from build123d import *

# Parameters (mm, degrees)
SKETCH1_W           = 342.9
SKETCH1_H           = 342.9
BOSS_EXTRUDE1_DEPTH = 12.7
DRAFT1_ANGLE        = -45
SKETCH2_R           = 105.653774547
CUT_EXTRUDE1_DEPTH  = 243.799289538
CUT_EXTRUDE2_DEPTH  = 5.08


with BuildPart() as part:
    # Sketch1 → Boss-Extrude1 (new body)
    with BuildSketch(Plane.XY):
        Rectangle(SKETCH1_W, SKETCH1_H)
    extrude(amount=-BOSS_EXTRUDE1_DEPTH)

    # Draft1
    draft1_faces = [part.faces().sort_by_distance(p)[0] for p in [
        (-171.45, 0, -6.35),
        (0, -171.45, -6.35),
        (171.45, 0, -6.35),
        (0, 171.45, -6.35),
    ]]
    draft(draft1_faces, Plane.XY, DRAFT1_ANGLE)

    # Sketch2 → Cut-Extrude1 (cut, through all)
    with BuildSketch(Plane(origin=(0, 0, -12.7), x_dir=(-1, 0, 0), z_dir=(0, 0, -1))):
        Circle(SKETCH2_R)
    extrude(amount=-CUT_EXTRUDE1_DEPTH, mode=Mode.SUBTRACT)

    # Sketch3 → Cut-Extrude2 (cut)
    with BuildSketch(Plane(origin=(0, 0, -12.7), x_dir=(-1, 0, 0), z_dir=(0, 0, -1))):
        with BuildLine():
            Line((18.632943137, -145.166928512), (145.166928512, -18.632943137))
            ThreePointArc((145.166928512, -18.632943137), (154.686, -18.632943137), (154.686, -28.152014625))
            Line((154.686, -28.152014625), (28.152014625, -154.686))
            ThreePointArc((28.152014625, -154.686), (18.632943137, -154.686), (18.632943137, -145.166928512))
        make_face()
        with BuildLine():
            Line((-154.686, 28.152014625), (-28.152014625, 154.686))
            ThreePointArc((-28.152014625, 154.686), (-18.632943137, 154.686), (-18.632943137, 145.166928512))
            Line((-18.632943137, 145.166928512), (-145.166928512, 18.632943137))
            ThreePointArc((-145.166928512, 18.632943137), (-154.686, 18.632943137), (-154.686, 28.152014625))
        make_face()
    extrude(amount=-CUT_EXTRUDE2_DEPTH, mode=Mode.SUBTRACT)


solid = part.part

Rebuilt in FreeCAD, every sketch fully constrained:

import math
import FreeCAD as App
import Part
import Sketcher
from FreeCAD import Vector
Q = App.Units.Quantity


def faces_at(feature, points):
    """Names of the faces that lie closest to the given points."""
    faces = feature.Shape.Faces
    near = lambda p: min(range(len(faces)), key=lambda i: faces[i].distToShape(Part.Vertex(*p))[0])
    return sorted({f"Face{near(p) + 1}" for p in points})

doc = App.newDocument("Part")
body = doc.addObject("PartDesign::Body", "Body")

sketch1 = doc.addObject("Sketcher::SketchObject", "Sketch")
body.addObject(sketch1)
sketch1.AttachmentSupport = (doc.XY_Plane, [""])
sketch1.MapMode = "FlatFace"
sketch1.addGeometry(Part.LineSegment(Vector(-171, 171, 0), Vector(-171, -171, 0)), False)
sketch1.addGeometry(Part.LineSegment(Vector(-171, -171, 0), Vector(171, -171, 0)), False)
sketch1.addGeometry(Part.LineSegment(Vector(171, -171, 0), Vector(171, 171, 0)), False)
sketch1.addGeometry(Part.LineSegment(Vector(171, 171, 0), Vector(-171, 171, 0)), False)
sketch1.addConstraint(Sketcher.Constraint("Coincident", 0, 2, 1, 1))
sketch1.addConstraint(Sketcher.Constraint("Coincident", 1, 2, 2, 1))
sketch1.addConstraint(Sketcher.Constraint("Coincident", 2, 2, 3, 1))
sketch1.addConstraint(Sketcher.Constraint("Coincident", 3, 2, 0, 1))
sketch1.addConstraint(Sketcher.Constraint("Vertical", 0))
sketch1.addConstraint(Sketcher.Constraint("Horizontal", 1))
sketch1.addConstraint(Sketcher.Constraint("Vertical", 2))
sketch1.addConstraint(Sketcher.Constraint("Horizontal", 3))
sketch1.addConstraint(Sketcher.Constraint("Symmetric", 0, 2, 2, 2, -1, 1))
sketch1.addConstraint(Sketcher.Constraint("Equal", 3, 0))
sketch1.addConstraint(Sketcher.Constraint("DistanceX", 1, 1, 1, 2, Q("13.5 in")))
pad1 = doc.addObject("PartDesign::Pad", "Pad")
body.addObject(pad1)
pad1.Profile = sketch1
pad1.Length = Q("0.5 in")
pad1.Reversed = True
doc.recompute()

draft = doc.addObject("PartDesign::Draft", "Draft")
body.addObject(draft)
draft.Base = (pad1, faces_at(pad1, [
    (-171.45, 0, -6.35),
    (0, -171.45, -6.35),
    (171.45, 0, -6.35),
    (0, 171.45, -6.35),
]))
draft.NeutralPlane = (doc.XY_Plane, [""])
draft.Angle = 45
draft.Reversed = True

sketch2 = doc.addObject("Sketcher::SketchObject", "Sketch001")
body.addObject(sketch2)
sketch2.AttachmentSupport = (doc.XY_Plane, [""])
sketch2.MapMode = "FlatFace"
sketch2.AttachmentOffset = App.Placement(Vector(0, 0, -0.5 * 25.4), App.Rotation())
sketch2.addGeometry(Part.Circle(Vector(0, 0, 0), Vector(0, 0, 1), 106), False)
sketch2.addConstraint(Sketcher.Constraint("Coincident", 0, 3, -1, 1))
sketch2.addConstraint(Sketcher.Constraint("Diameter", 0, Q("211.307549 mm")))
pocket1 = doc.addObject("PartDesign::Pocket", "Pocket")
body.addObject(pocket1)
pocket1.Profile = sketch2
pocket1.Type = "ThroughAll"
pocket1.Reversed = True

sketch3 = doc.addObject("Sketcher::SketchObject", "Sketch002")
body.addObject(sketch3)
sketch3.AttachmentSupport = (doc.XY_Plane, [""])
sketch3.MapMode = "FlatFace"
sketch3.AttachmentOffset = App.Placement(Vector(0, 0, -0.5 * 25.4), App.Rotation())
sketch3.addGeometry(Part.LineSegment(Vector(-145, -19, 0), Vector(-19, -145, 0)), False)
sketch3.addGeometry(Part.ArcOfCircle(Part.Circle(Vector(-23, -150, 0), Vector(0, 0, 1), 7), math.radians(-135), math.radians(45)), False)
sketch3.addGeometry(Part.LineSegment(Vector(-28, -155, 0), Vector(-155, -28, 0)), False)
sketch3.addGeometry(Part.ArcOfCircle(Part.Circle(Vector(-150, -23, 0), Vector(0, 0, 1), 7), math.radians(45), math.radians(225)), False)
sketch3.addGeometry(Part.LineSegment(Vector(28, 155, 0), Vector(155, 28, 0)), False)
sketch3.addGeometry(Part.ArcOfCircle(Part.Circle(Vector(150, 23, 0), Vector(0, 0, 1), 7), math.radians(-135), math.radians(45)), False)
sketch3.addGeometry(Part.LineSegment(Vector(145, 19, 0), Vector(19, 145, 0)), False)
sketch3.addGeometry(Part.ArcOfCircle(Part.Circle(Vector(23, 150, 0), Vector(0, 0, 1), 7), math.radians(45), math.radians(225)), False)
sketch3.addConstraint(Sketcher.Constraint("Tangent", 0, 2, 1, 2))
sketch3.addConstraint(Sketcher.Constraint("Tangent", 1, 1, 2, 1))
sketch3.addConstraint(Sketcher.Constraint("Tangent", 2, 2, 3, 2))
sketch3.addConstraint(Sketcher.Constraint("Tangent", 3, 1, 0, 1))
sketch3.addConstraint(Sketcher.Constraint("Tangent", 4, 2, 5, 2))
sketch3.addConstraint(Sketcher.Constraint("Tangent", 5, 1, 6, 1))
sketch3.addConstraint(Sketcher.Constraint("Tangent", 6, 2, 7, 2))
sketch3.addConstraint(Sketcher.Constraint("Tangent", 7, 1, 4, 1))
sketch3.addConstraint(Sketcher.Constraint("Equal", 1, 3))
sketch3.addConstraint(Sketcher.Constraint("Equal", 3, 5))
sketch3.addConstraint(Sketcher.Constraint("Equal", 5, 7))
sketch3.addConstraint(Sketcher.Constraint("Symmetric", 3, 3, 5, 3, -1, 1))
sketch3.addConstraint(Sketcher.Constraint("Symmetric", 1, 3, 7, 3, -1, 1))
sketch3.addConstraint(Sketcher.Constraint("Angle", 0, Q("-45 deg")))
sketch3.addConstraint(Sketcher.Constraint("Radius", 1, Q("0.265 in")))
sketch3.addConstraint(Sketcher.Constraint("DistanceY", 1, 1, -1, 1, Q("6.09 in")))
sketch3.addConstraint(Sketcher.Constraint("DistanceX", 2, 2, -1, 1, Q("6.09 in")))
sketch3.addConstraint(Sketcher.Constraint("Distance", 0, Q("178.946078 mm")))
pocket2 = doc.addObject("PartDesign::Pocket", "Pocket001")
body.addObject(pocket2)
pocket2.Profile = sketch3
pocket2.Length = Q("0.2 in")
pocket2.Reversed = True

doc.recompute()
